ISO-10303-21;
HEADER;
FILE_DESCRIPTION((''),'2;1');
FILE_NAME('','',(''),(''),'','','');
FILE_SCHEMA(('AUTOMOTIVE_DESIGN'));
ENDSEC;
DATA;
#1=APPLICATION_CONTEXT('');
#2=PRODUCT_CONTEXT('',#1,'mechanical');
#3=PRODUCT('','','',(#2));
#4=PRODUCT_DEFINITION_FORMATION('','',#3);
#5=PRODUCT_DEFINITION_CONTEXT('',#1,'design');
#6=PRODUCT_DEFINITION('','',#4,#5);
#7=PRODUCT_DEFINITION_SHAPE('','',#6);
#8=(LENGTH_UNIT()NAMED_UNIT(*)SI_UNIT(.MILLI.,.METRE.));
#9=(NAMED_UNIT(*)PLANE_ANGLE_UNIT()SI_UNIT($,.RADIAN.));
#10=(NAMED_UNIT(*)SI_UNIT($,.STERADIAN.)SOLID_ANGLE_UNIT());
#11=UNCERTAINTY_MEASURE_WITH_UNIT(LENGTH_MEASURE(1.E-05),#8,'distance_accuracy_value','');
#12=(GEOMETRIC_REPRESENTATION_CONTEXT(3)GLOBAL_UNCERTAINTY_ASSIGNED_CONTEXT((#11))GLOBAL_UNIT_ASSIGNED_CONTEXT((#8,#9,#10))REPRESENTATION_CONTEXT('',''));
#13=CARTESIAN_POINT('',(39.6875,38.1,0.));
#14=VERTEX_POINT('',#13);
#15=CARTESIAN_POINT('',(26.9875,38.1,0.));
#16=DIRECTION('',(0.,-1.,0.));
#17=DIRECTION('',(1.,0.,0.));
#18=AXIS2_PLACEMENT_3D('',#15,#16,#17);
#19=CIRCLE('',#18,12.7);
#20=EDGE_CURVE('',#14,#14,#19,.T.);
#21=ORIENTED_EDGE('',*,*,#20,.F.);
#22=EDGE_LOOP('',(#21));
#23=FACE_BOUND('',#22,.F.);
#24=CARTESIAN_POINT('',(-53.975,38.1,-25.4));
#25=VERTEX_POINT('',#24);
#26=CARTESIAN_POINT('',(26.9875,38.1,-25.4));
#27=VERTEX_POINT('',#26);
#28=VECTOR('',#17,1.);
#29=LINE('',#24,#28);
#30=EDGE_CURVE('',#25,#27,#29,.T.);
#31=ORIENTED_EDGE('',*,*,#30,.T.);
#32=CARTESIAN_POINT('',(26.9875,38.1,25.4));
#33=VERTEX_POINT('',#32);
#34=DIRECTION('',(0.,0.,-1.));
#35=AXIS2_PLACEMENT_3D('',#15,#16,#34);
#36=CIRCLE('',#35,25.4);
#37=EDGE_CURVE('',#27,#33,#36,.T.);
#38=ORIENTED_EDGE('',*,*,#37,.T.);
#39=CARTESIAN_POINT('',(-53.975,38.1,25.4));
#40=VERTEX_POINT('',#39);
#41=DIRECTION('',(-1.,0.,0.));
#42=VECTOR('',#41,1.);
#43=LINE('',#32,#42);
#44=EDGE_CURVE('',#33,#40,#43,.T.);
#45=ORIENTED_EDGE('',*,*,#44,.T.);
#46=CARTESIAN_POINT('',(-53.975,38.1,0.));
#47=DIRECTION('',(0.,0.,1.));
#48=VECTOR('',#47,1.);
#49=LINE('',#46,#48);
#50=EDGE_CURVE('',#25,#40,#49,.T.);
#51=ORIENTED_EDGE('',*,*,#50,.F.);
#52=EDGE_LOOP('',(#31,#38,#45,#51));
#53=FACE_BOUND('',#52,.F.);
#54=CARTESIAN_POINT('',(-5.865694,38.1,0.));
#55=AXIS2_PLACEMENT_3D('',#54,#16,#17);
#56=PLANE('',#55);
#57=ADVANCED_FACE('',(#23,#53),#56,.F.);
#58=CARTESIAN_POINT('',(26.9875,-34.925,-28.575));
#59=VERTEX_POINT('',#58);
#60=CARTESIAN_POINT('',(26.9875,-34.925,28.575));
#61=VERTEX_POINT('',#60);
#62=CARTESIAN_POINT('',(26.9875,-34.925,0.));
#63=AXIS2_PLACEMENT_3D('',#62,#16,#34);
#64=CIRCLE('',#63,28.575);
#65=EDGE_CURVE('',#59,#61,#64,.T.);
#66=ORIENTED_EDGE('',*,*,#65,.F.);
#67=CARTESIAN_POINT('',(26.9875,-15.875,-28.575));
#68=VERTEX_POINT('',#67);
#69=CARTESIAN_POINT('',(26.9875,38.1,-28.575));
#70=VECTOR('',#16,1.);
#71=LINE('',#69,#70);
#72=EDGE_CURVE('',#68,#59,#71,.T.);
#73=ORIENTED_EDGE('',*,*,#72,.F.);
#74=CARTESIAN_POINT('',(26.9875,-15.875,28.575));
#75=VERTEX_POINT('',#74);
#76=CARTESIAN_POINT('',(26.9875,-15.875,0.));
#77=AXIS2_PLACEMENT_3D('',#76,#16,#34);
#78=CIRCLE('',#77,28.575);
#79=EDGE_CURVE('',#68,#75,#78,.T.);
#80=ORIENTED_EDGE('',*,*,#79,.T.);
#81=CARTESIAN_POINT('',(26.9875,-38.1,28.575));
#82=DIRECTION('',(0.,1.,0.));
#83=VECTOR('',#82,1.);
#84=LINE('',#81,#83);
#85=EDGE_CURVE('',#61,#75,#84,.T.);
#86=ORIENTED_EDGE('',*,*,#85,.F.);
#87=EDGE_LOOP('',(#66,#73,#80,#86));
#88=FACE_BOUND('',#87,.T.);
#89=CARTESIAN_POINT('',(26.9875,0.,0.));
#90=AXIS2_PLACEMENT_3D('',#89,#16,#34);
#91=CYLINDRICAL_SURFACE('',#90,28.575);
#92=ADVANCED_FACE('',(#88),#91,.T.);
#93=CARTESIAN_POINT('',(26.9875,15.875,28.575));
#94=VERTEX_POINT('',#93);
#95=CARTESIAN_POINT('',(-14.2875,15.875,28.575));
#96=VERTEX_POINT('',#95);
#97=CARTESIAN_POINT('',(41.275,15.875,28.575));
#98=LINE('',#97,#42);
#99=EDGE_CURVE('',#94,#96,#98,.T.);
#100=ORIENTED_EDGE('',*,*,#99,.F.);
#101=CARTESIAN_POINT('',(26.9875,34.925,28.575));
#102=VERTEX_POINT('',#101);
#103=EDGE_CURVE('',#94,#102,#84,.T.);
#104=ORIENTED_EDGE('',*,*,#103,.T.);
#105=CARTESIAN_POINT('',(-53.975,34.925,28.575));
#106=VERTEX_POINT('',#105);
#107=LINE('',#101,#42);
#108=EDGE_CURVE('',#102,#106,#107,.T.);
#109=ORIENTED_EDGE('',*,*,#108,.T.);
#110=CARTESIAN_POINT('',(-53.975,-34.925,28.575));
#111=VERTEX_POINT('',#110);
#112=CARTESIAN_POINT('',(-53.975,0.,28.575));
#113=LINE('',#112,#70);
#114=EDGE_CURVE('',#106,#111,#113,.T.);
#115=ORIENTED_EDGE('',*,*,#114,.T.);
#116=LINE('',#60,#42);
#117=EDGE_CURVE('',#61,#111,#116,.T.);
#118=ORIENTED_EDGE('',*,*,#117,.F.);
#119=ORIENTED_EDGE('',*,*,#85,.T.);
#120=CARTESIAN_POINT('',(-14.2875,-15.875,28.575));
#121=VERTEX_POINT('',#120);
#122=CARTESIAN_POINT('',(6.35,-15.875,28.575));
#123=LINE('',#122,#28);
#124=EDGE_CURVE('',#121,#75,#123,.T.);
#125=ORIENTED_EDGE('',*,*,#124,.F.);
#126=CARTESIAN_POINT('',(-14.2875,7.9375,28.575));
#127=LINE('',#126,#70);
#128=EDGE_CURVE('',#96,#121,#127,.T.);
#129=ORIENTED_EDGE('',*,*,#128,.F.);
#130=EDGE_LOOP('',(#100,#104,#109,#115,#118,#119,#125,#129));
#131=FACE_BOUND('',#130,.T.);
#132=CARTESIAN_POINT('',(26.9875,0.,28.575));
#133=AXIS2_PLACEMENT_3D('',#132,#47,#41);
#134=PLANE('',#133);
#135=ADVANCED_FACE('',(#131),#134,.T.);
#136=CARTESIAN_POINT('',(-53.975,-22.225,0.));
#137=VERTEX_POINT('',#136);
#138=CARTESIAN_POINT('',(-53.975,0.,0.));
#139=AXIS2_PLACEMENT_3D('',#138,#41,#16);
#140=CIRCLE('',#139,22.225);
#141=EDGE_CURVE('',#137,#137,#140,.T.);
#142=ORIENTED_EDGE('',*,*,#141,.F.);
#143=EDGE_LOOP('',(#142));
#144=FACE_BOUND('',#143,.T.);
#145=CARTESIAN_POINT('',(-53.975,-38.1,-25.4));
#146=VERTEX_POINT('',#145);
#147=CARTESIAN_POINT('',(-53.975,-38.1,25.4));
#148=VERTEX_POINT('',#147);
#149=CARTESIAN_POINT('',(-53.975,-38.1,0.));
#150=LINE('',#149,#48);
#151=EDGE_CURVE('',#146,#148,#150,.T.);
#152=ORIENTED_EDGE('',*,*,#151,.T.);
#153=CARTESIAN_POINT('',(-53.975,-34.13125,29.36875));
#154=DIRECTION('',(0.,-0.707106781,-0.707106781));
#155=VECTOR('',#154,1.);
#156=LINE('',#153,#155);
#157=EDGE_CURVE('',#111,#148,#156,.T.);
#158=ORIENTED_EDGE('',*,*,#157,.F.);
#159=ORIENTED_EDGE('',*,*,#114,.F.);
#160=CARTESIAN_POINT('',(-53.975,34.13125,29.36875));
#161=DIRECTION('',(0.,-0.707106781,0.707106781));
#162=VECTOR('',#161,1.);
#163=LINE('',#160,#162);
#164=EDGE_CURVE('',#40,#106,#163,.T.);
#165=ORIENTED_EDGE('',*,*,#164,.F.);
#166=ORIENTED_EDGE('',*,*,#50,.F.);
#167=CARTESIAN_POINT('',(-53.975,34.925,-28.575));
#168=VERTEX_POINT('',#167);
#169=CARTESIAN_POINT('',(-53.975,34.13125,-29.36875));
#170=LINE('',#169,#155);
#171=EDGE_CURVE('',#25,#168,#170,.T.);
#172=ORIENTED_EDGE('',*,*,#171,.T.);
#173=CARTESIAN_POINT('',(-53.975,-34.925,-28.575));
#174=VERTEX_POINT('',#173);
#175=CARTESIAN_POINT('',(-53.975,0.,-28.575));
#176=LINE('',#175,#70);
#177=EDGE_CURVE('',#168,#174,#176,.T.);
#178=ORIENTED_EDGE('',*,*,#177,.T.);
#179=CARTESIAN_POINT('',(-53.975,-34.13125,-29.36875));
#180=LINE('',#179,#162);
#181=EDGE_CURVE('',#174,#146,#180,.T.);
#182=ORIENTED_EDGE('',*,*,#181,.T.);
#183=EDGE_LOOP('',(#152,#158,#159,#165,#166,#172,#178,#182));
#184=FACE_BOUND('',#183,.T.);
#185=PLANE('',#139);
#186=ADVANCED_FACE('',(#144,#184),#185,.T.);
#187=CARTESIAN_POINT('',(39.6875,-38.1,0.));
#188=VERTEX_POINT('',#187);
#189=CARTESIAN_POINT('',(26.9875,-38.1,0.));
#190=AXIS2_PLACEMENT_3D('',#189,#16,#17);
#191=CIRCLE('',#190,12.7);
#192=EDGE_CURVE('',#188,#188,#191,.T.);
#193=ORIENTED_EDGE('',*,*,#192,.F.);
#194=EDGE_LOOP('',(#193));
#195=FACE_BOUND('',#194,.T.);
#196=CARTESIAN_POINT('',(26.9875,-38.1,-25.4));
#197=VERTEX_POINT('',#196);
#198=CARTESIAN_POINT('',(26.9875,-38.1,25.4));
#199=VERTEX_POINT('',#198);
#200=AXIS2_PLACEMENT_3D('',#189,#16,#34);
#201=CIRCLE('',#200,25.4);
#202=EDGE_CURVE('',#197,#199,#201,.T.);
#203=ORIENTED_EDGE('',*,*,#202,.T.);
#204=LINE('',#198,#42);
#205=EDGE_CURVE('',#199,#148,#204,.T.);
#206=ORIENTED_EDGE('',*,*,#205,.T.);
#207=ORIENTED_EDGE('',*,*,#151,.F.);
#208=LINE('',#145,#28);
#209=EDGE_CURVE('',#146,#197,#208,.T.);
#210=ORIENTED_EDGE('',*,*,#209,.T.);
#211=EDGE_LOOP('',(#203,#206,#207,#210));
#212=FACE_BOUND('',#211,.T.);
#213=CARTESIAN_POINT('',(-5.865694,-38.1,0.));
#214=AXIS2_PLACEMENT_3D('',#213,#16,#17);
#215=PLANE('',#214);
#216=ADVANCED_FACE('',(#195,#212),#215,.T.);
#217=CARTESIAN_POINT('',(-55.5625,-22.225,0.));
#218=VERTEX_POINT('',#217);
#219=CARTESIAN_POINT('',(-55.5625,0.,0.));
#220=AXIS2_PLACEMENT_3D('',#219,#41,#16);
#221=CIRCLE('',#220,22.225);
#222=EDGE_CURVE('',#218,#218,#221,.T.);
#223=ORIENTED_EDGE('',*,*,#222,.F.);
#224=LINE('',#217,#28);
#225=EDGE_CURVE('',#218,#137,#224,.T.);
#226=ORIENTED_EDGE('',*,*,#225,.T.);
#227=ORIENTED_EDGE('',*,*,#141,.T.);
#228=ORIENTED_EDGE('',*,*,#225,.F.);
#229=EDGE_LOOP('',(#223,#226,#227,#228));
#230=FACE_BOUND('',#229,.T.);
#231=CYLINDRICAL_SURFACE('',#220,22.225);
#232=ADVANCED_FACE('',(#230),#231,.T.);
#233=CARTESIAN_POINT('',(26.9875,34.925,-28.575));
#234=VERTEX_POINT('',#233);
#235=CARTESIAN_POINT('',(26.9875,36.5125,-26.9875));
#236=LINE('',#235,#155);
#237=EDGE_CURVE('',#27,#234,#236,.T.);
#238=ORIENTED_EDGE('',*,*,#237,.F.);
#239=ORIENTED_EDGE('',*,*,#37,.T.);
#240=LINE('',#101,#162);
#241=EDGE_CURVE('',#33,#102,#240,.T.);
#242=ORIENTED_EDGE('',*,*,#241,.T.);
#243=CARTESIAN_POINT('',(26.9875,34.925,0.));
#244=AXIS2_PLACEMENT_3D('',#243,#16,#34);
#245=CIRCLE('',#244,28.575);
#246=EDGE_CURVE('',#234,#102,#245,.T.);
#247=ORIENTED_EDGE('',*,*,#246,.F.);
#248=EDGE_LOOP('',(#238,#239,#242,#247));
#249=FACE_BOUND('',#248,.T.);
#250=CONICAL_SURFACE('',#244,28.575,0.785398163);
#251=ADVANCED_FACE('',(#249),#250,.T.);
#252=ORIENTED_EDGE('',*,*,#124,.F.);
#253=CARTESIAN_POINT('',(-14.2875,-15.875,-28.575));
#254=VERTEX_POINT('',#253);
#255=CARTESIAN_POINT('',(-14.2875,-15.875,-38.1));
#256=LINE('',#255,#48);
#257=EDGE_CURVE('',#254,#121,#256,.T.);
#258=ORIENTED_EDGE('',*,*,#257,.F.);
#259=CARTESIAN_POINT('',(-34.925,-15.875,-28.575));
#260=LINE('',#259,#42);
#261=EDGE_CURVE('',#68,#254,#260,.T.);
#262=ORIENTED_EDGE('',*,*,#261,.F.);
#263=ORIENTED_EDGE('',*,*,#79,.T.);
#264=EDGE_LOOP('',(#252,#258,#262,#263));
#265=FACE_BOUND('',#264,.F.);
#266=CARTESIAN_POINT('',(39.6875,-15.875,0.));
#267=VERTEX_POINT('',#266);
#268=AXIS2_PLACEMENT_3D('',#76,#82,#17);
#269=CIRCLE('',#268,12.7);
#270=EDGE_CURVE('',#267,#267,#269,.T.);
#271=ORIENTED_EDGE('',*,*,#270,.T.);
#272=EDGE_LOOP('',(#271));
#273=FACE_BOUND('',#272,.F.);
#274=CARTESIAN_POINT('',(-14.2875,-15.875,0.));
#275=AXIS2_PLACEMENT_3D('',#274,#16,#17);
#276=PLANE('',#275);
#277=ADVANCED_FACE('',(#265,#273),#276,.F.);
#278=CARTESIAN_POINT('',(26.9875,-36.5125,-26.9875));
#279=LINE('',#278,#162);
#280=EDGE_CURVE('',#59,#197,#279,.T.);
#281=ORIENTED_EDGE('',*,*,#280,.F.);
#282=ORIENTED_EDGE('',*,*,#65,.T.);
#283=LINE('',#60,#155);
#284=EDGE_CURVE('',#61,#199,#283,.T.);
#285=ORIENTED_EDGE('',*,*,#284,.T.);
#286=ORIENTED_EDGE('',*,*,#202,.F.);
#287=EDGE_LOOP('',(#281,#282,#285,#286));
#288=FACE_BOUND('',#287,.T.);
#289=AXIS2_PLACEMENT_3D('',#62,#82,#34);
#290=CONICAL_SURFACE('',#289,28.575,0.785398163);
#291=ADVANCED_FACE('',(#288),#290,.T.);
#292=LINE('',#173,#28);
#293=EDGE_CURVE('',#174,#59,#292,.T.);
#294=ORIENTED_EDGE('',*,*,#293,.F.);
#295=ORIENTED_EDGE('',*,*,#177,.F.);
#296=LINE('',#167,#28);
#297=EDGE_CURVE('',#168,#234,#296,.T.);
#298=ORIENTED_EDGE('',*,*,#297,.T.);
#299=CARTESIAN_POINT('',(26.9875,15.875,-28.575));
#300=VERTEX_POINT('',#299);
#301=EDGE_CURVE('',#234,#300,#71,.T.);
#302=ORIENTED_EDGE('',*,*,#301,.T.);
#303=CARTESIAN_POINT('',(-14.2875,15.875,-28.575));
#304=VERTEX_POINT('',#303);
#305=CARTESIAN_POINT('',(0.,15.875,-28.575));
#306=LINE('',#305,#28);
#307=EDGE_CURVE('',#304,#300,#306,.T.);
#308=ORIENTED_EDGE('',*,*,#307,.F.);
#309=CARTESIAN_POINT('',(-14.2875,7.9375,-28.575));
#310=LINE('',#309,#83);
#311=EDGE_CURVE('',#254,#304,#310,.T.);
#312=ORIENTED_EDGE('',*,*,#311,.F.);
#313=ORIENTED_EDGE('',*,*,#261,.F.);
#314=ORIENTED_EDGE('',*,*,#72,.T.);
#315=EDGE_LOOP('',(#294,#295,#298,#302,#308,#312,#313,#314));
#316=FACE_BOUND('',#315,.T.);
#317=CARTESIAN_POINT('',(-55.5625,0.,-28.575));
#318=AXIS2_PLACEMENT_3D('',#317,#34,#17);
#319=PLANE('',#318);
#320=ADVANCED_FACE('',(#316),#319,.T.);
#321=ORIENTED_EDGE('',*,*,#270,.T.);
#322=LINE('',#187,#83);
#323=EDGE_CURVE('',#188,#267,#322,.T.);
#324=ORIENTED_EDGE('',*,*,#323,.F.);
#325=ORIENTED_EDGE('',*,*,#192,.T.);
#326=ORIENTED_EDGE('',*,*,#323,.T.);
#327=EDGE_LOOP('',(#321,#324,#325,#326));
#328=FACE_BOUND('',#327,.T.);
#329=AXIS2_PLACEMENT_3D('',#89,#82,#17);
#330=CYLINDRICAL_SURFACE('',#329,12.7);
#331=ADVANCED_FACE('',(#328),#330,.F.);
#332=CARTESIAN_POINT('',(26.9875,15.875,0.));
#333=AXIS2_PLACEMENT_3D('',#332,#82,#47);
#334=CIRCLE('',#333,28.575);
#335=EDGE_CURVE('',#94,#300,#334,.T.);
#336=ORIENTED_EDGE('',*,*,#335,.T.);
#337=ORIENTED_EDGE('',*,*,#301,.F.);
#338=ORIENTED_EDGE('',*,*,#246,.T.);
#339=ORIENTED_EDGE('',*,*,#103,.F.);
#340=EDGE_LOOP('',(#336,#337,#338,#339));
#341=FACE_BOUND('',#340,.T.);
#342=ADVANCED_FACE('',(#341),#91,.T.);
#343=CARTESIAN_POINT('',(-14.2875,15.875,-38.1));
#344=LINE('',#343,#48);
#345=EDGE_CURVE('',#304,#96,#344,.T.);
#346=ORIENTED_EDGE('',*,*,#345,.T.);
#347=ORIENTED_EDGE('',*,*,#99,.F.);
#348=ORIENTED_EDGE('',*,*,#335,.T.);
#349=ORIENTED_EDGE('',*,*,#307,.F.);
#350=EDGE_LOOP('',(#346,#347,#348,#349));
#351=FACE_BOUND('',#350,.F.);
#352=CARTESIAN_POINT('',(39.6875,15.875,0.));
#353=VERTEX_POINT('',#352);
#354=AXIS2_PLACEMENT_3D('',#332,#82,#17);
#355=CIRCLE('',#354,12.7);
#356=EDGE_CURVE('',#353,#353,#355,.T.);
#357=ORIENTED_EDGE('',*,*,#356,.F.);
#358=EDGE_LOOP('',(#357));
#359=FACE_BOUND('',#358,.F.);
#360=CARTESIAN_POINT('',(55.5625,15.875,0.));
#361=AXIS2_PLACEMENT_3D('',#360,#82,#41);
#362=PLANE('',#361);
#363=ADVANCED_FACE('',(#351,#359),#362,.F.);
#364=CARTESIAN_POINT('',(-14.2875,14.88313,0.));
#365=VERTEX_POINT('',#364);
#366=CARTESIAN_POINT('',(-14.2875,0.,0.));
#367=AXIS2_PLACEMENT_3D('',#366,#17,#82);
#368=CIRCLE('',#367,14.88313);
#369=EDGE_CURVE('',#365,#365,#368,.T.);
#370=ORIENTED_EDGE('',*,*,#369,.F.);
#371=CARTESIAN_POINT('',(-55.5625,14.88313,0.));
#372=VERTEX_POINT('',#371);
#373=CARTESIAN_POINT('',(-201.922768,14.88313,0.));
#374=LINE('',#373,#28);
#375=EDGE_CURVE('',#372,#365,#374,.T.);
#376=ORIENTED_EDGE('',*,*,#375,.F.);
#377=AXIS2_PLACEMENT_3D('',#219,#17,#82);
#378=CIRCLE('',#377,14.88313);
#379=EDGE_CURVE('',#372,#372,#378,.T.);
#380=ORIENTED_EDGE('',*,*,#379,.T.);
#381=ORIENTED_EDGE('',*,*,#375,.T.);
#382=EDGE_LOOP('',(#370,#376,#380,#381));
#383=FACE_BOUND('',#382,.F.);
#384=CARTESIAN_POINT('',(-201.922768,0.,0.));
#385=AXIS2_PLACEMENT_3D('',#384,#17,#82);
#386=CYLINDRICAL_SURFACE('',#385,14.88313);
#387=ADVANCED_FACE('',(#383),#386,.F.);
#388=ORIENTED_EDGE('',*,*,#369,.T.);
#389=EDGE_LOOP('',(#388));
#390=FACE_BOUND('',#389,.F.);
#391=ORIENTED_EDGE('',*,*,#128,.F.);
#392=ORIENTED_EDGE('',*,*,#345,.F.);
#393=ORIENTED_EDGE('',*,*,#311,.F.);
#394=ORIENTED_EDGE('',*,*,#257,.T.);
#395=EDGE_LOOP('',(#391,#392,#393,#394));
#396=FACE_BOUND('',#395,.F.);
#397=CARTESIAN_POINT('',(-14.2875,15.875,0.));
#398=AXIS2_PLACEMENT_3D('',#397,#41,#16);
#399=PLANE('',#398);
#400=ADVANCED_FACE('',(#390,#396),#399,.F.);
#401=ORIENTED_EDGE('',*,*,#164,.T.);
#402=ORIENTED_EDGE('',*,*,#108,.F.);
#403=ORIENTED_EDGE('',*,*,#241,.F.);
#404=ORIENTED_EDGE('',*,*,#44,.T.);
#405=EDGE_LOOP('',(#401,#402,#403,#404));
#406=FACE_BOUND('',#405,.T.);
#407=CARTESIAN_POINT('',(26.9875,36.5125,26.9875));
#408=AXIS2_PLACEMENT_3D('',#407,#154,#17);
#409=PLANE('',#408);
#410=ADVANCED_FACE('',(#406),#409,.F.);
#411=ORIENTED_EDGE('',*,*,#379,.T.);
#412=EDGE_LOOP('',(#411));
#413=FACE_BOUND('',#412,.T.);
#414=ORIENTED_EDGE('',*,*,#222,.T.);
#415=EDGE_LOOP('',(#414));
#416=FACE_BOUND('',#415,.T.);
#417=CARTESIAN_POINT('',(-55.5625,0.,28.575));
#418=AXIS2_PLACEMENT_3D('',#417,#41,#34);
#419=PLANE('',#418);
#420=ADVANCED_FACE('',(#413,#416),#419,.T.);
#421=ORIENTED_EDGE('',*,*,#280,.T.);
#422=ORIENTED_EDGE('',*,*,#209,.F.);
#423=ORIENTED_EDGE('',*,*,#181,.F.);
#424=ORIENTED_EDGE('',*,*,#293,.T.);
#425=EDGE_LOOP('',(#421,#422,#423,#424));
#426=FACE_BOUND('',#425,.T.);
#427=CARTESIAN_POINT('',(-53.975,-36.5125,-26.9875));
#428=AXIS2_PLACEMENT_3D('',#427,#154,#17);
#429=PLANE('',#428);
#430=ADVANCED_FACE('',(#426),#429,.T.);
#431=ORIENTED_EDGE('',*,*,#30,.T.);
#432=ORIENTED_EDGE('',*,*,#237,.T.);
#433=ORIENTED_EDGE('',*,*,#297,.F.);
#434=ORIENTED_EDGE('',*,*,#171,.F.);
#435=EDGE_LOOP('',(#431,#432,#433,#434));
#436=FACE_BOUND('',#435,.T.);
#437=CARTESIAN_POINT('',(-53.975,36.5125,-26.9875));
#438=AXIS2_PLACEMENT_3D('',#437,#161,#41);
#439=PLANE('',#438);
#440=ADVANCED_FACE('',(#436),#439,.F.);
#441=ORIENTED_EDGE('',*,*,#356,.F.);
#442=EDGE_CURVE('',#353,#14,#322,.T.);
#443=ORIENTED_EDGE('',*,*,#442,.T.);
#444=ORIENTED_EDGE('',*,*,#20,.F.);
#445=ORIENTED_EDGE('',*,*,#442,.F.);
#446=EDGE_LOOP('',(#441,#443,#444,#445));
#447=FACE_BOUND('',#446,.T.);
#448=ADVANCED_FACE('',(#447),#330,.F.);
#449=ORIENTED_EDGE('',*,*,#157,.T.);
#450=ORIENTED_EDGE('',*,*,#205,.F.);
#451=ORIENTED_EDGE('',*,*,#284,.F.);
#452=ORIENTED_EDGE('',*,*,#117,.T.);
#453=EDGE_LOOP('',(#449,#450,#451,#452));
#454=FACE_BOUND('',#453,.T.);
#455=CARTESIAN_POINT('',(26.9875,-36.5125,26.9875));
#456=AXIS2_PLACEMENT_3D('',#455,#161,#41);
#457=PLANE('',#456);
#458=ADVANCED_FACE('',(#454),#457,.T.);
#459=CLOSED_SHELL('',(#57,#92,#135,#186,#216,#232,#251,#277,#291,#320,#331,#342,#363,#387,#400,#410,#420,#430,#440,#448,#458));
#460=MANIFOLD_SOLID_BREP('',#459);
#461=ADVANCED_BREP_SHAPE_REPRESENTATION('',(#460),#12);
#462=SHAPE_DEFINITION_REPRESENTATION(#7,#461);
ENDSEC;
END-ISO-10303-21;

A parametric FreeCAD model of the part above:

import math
import FreeCAD as App
import Part
import Sketcher
from FreeCAD import Vector
Q = App.Units.Quantity


def edges_at(feature, points):
    """Names of the edges that pass closest to the given points."""
    edges = feature.Shape.Edges
    near = lambda p: min(range(len(edges)), key=lambda i: edges[i].distToShape(Part.Vertex(*p))[0])
    return sorted({f"Edge{near(p) + 1}" for p in points})


def add_polygon(sketch, points):
    """Adds a closed chain of lines whose ends are joined by coincident constraints."""
    first, n = sketch.GeometryCount, len(points)
    for a, b in zip(points, points[1:] + points[:1]):
        sketch.addGeometry(Part.LineSegment(App.Vector(*a, 0), App.Vector(*b, 0)), False)
    for i in range(n):
        sketch.addConstraint(Sketcher.Constraint("Coincident", first + i, 2, first + (i + 1) % n, 1))

doc = App.newDocument("Part")
body = doc.addObject("PartDesign::Body", "Body")

# Sketch on XZ plane
sketch1 = doc.addObject("Sketcher::SketchObject", "Sketch")
body.addObject(sketch1)
sketch1.AttachmentSupport = (doc.XZ_Plane, [""])
sketch1.MapMode = "FlatFace"
sketch1.addGeometry([
    Part.LineSegment(Vector(-56, 29, 0), Vector(-56, -29, 0)),  # 0
    Part.LineSegment(Vector(-56, -29, 0), Vector(27, -29, 0)),  # 1
    Part.ArcOfCircle(Part.Circle(Vector(27, 0, 0), Vector(0, 0, 1), 29), math.radians(-90), math.radians(90)),  # 2
    Part.LineSegment(Vector(27, 29, 0), Vector(-56, 29, 0)),  # 3
    Part.Circle(Vector(27, 0, 0), Vector(0, 0, 1), 13),  # 4
], False)
sketch1.addConstraint([
    Sketcher.Constraint("Coincident", 0, 2, 1, 1),
    Sketcher.Constraint("Tangent", 1, 2, 2, 1),
    Sketcher.Constraint("Tangent", 2, 2, 3, 1),
    Sketcher.Constraint("Coincident", 3, 2, 0, 1),
    Sketcher.Constraint("Vertical", 0),
    Sketcher.Constraint("Horizontal", 1),
    Sketcher.Constraint("Horizontal", 3),
    Sketcher.Constraint("Coincident", 4, 3, 2, 3),
    Sketcher.Constraint("PointOnObject", 2, 3, -1),
    Sketcher.Constraint("Diameter", 4, Q("1 in")),
    Sketcher.Constraint("Radius", 2, Q("1.125 in")),
    Sketcher.Constraint("DistanceX", 1, 1, 1, 2, Q("3.25 in")),
    Sketcher.Constraint("DistanceX", -1, 1, 2, 3, Q("1.0625 in")),
])
pad1 = doc.addObject("PartDesign::Pad", "Pad")
body.addObject(pad1)
pad1.Profile = sketch1
pad1.Length = Q("3 in")
pad1.Midplane = True

# Sketch on XY plane
sketch2 = doc.addObject("Sketcher::SketchObject", "Sketch001")
body.addObject(sketch2)
sketch2.AttachmentSupport = (doc.XY_Plane, [""])
sketch2.MapMode = "FlatFace"
add_polygon(sketch2, [(56, 16), (-14, 16), (-14, -16), (56, -16)])  # lines 0-3
sketch2.addConstraint([
    Sketcher.Constraint("Horizontal", 0),
    Sketcher.Constraint("Vertical", 1),
    Sketcher.Constraint("Horizontal", 2),
    Sketcher.Constraint("Vertical", 3),
    Sketcher.Constraint("DistanceX", 0, 2, 0, 1, Q("2.75 in")),
    Sketcher.Constraint("DistanceY", 1, 2, 1, 1, Q("1.25 in")),
    Sketcher.Constraint("DistanceX", 0, 2, -1, 1, Q("0.5625 in")),
    Sketcher.Constraint("DistanceY", -1, 1, 0, 2, Q("0.625 in")),
])
pocket1 = doc.addObject("PartDesign::Pocket", "Pocket")
body.addObject(pocket1)
pocket1.Profile = sketch2
pocket1.Length = Q("3 in")
pocket1.Midplane = True

# Sketch on YZ plane
sketch3 = doc.addObject("Sketcher::SketchObject", "Sketch002")
body.addObject(sketch3)
sketch3.AttachmentSupport = (doc.YZ_Plane, [""])
sketch3.MapMode = "FlatFace"
sketch3.AttachmentOffset = App.Placement(Vector(0, 0, -2.1875 * 25.4), App.Rotation())
sketch3.addGeometry(Part.Circle(Vector(0, 0, 0), Vector(0, 0, 1), 15), False)
sketch3.addConstraint([
    Sketcher.Constraint("Coincident", 0, 3, -1, 1),
    Sketcher.Constraint("Diameter", 0, Q("1.1719 in")),
])
doc.recompute()
hole = doc.addObject("PartDesign::Hole", "Hole")
body.addObject(hole)
hole.Profile = sketch3
hole.ThreadType = "None"
hole.Diameter = Q("1.1719 in")
hole.DepthType = "ThroughAll"
hole.Reversed = True

# Sketch on YZ plane
sketch4 = doc.addObject("Sketcher::SketchObject", "Sketch003")
body.addObject(sketch4)
sketch4.AttachmentSupport = (doc.YZ_Plane, [""])
sketch4.MapMode = "FlatFace"
sketch4.AttachmentOffset = App.Placement(Vector(0, 0, -2.1875 * 25.4), App.Rotation())
add_polygon(sketch4, [(38, 29), (38, -29), (-38, -29), (-38, 29)])  # lines 0-3
sketch4.addGeometry(Part.Circle(Vector(0, 0, 0), Vector(0, 0, 1), 22), False)  # 4
sketch4.addConstraint([
    Sketcher.Constraint("Vertical", 0),
    Sketcher.Constraint("Horizontal", 1),
    Sketcher.Constraint("Vertical", 2),
    Sketcher.Constraint("Horizontal", 3),
    Sketcher.Constraint("Coincident", 4, 3, -1, 1),
    Sketcher.Constraint("Symmetric", 0, 2, 2, 2, -1, 1),
    Sketcher.Constraint("Diameter", 4, Q("1.75 in")),
    Sketcher.Constraint("DistanceX", 1, 2, 1, 1, Q("3 in")),
    Sketcher.Constraint("DistanceY", 0, 2, 0, 1, Q("2.25 in")),
])
pocket2 = doc.addObject("PartDesign::Pocket", "Pocket001")
body.addObject(pocket2)
pocket2.Profile = sketch4
pocket2.Length = Q("0.0625 in")
pocket2.Reversed = True
doc.recompute()

chamfer = doc.addObject("PartDesign::Chamfer", "Chamfer")
body.addObject(chamfer)
chamfer.Base = (pocket2, edges_at(pocket2, [(-13.494, 38.1, 28.575), (-13.494, -38.1, -28.575)]))
chamfer.Size = Q("0.125 in")

doc.recompute()
